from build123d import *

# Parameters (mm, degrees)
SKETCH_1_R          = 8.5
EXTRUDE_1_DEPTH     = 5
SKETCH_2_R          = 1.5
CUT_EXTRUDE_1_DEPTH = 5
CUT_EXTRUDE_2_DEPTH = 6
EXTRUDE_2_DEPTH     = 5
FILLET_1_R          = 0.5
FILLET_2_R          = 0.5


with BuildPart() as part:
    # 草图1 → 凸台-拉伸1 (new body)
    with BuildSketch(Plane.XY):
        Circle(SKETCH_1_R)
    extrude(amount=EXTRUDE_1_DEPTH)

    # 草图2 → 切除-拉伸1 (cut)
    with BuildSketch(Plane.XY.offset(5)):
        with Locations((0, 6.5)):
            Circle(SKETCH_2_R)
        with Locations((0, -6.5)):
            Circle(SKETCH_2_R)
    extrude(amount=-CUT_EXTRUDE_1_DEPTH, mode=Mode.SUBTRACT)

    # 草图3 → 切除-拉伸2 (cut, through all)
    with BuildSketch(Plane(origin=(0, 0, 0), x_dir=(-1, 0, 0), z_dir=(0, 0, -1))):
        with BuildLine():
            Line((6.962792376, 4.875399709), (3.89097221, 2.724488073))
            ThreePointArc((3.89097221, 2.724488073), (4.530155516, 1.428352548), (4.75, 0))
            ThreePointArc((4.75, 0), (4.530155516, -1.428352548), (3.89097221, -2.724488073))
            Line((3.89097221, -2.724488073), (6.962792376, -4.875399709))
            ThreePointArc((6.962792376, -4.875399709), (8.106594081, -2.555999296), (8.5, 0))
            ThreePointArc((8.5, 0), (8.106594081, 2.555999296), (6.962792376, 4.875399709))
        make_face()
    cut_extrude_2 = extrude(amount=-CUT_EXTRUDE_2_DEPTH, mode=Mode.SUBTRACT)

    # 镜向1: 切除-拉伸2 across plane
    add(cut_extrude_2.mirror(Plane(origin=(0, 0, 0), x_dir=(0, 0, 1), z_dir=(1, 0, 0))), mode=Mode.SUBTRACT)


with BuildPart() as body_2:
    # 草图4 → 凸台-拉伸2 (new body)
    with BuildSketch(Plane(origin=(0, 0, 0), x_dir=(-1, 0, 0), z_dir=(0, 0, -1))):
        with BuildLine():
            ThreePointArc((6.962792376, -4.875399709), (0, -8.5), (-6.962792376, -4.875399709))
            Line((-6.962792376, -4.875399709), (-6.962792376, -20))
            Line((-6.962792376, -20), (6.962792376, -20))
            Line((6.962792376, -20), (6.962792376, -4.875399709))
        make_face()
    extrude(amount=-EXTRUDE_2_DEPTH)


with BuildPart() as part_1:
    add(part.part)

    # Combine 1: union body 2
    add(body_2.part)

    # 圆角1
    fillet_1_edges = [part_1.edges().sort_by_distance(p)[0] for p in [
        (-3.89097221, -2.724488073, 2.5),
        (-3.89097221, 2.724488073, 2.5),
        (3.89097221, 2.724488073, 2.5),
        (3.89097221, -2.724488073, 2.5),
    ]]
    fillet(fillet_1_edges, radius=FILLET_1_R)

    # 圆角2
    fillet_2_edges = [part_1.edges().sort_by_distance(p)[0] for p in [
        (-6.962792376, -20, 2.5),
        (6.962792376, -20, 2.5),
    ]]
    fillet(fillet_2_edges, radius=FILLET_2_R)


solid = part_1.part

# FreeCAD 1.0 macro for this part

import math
import FreeCAD as App
import Part
import Sketcher

V = App.Vector
Q = App.Units.Quantity


def edges_at(feature, points):
    """Names of the edges that pass closest to the given points."""
    edges = feature.Shape.Edges
    near = lambda p: min(range(len(edges)), key=lambda i: edges[i].distToShape(Part.Vertex(*p))[0])
    return sorted({f"Edge{near(p) + 1}" for p in points})

doc = App.newDocument("Part")
body = doc.addObject("PartDesign::Body", "Body")

# Sketch on XY plane
sketch1 = doc.addObject("Sketcher::SketchObject", "Sketch")
body.addObject(sketch1)
sketch1.AttachmentSupport = (doc.XY_Plane, [""])
sketch1.MapMode = "FlatFace"
sketch1.addGeometry(Part.Circle(V(0, 0, 0), V(0, 0, 1), 8), False)
sketch1.addConstraint([
    Sketcher.Constraint("Coincident", 0, 3, -1, 1),
    Sketcher.Constraint("Diameter", 0, 17.0),
])
pad1 = doc.addObject("PartDesign::Pad", "Pad")
body.addObject(pad1)
pad1.Profile = sketch1
pad1.Length = 5

# Sketch on XY plane
sketch2 = doc.addObject("Sketcher::SketchObject", "Sketch001")
body.addObject(sketch2)
sketch2.AttachmentSupport = (doc.XY_Plane, [""])
sketch2.MapMode = "FlatFace"
sketch2.AttachmentOffset = App.Placement(V(0, 0, 5), App.Rotation())
sketch2.addGeometry([
    Part.Circle(V(0, 6.5, 0), V(0, 0, 1), 1.5),
    Part.Circle(V(0, -6.5, 0), V(0, 0, 1), 1.5),
], False)
sketch2.addConstraint([
    Sketcher.Constraint("Equal", 0, 1),
    Sketcher.Constraint("Symmetric", 0, 3, 1, 3, -1, 1),
    Sketcher.Constraint("PointOnObject", 0, 3, -2),
    Sketcher.Constraint("Diameter", 0, 3.0),
    Sketcher.Constraint("DistanceY", 1, 3, 0, 3, 13.0),
])
pocket1 = doc.addObject("PartDesign::Pocket", "Pocket")
body.addObject(pocket1)
pocket1.Profile = sketch2
pocket1.Length = 5

# Sketch on XY plane
sketch3 = doc.addObject("Sketcher::SketchObject", "Sketch002")
body.addObject(sketch3)
sketch3.AttachmentSupport = (doc.XY_Plane, [""])
sketch3.MapMode = "FlatFace"
sketch3.addGeometry([
    Part.LineSegment(V(-7, 4.9, 0), V(-3.9, 2.7, 0)),  # 0
    Part.ArcOfCircle(Part.Circle(V(0, 0, 0), V(0, 0, 1), 4.7), math.radians(145), math.radians(180)),  # 1
    Part.ArcOfCircle(Part.Circle(V(0, 0, 0), V(0, 0, 1), 4.7), math.radians(180), math.radians(215)),  # 2
    Part.LineSegment(V(-3.9, -2.7, 0), V(-7, -4.9, 0)),  # 3
    Part.ArcOfCircle(Part.Circle(V(0, 0, 0), V(0, 0, 1), 8.5), math.radians(-180), math.radians(-145)),  # 4
    Part.ArcOfCircle(Part.Circle(V(0, 0, 0), V(0, 0, 1), 8.5), math.radians(145), math.radians(180)),  # 5
], False)
sketch3.addConstraint([
    Sketcher.Constraint("Coincident", 0, 2, 1, 1),
    Sketcher.Constraint("Tangent", 1, 2, 2, 1),
    Sketcher.Constraint("Coincident", 2, 2, 3, 1),
    Sketcher.Constraint("Coincident", 3, 2, 4, 2),
    Sketcher.Constraint("Tangent", 4, 1, 5, 2),
    Sketcher.Constraint("Coincident", 5, 1, 0, 1),
    Sketcher.Constraint("Coincident", 1, 3, -1, 1),
    Sketcher.Constraint("Coincident", 4, 3, -1, 1),
    Sketcher.Constraint("Equal", 1, 2),
    Sketcher.Constraint("Equal", 4, 5),
    Sketcher.Constraint("PointOnObject", 1, 2, -1),
    Sketcher.Constraint("PointOnObject", 4, 1, -1),
    Sketcher.Constraint("Vertical", 0, 2, 2, 2),
    Sketcher.Constraint("Vertical", 3, 2, 5, 1),
    Sketcher.Constraint("Radius", 4, 8.5),
    Sketcher.Constraint("Angle", 0, Q("-35 deg")),
    Sketcher.Constraint("Radius", 1, 4.75),
    Sketcher.Constraint("DistanceY", 3, 2, -1, 1, 4.8754),
])
pocket2 = doc.addObject("PartDesign::Pocket", "Pocket001")
body.addObject(pocket2)
pocket2.Profile = sketch3
pocket2.Type = "ThroughAll"
pocket2.Reversed = True
doc.recompute()

mirrored = doc.addObject("PartDesign::Mirrored", "Mirrored")
body.addObject(mirrored)
mirrored.Originals = [pocket2]
mirrored.MirrorPlane = (doc.YZ_Plane, [""])
body.Tip = mirrored
body2 = doc.addObject("PartDesign::Body", "Body001")

# Sketch on XY plane
sketch4 = doc.addObject("Sketcher::SketchObject", "Sketch003")
body2.addObject(sketch4)
sketch4.AttachmentSupport = (doc.getObject("XY_Plane001"), [""])
sketch4.MapMode = "FlatFace"
sketch4.addGeometry([
    Part.ArcOfCircle(Part.Circle(V(0, 0, 0), V(0, 0, 1), 8), math.radians(-145), math.radians(-35)),
    Part.LineSegment(V(7, -5, 0), V(7, -20, 0)),
    Part.LineSegment(V(7, -20, 0), V(-7, -20, 0)),
    Part.LineSegment(V(-7, -20, 0), V(-7, -5, 0)),
], False)
sketch4.addConstraint([
    Sketcher.Constraint("Coincident", 0, 2, 1, 1),
    Sketcher.Constraint("Coincident", 1, 2, 2, 1),
    Sketcher.Constraint("Coincident", 2, 2, 3, 1),
    Sketcher.Constraint("Coincident", 3, 2, 0, 1),
    Sketcher.Constraint("Vertical", 1),
    Sketcher.Constraint("Horizontal", 2),
    Sketcher.Constraint("Vertical", 3),
    Sketcher.Constraint("Coincident", 0, 3, -1, 1),
    Sketcher.Constraint("Horizontal", 0, 2, 3, 2),
    Sketcher.Constraint("Radius", 0, 8.5),
    Sketcher.Constraint("DistanceY", 1, 2, -1, 1, 20.0),
    Sketcher.Constraint("DistanceY", 1, 2, 1, 1, 15.1246),
])
pad2 = doc.addObject("PartDesign::Pad", "Pad001")
body2.addObject(pad2)
pad2.Profile = sketch4
pad2.Length = 5
doc.recompute()

boolean = doc.addObject("PartDesign::Boolean", "Boolean")
body.addObject(boolean)
boolean.Type = "Fuse"
boolean.addObjects([body2])
doc.recompute()

fillet = doc.addObject("PartDesign::Fillet", "Fillet")
body.addObject(fillet)
fillet.Base = (boolean, edges_at(boolean, [
    (-3.891, -2.724, 2.5),
    (-3.891, 2.724, 2.5),
    (3.891, 2.724, 2.5),
    (3.891, -2.724, 2.5),
]))
fillet.Radius = 0.5
doc.recompute()

fillet2 = doc.addObject("PartDesign::Fillet", "Fillet001")
body.addObject(fillet2)
fillet2.Base = (fillet, edges_at(fillet, [(-6.963, -20, 2.5), (6.963, -20, 2.5)]))
fillet2.Radius = 0.5

doc.recompute()
